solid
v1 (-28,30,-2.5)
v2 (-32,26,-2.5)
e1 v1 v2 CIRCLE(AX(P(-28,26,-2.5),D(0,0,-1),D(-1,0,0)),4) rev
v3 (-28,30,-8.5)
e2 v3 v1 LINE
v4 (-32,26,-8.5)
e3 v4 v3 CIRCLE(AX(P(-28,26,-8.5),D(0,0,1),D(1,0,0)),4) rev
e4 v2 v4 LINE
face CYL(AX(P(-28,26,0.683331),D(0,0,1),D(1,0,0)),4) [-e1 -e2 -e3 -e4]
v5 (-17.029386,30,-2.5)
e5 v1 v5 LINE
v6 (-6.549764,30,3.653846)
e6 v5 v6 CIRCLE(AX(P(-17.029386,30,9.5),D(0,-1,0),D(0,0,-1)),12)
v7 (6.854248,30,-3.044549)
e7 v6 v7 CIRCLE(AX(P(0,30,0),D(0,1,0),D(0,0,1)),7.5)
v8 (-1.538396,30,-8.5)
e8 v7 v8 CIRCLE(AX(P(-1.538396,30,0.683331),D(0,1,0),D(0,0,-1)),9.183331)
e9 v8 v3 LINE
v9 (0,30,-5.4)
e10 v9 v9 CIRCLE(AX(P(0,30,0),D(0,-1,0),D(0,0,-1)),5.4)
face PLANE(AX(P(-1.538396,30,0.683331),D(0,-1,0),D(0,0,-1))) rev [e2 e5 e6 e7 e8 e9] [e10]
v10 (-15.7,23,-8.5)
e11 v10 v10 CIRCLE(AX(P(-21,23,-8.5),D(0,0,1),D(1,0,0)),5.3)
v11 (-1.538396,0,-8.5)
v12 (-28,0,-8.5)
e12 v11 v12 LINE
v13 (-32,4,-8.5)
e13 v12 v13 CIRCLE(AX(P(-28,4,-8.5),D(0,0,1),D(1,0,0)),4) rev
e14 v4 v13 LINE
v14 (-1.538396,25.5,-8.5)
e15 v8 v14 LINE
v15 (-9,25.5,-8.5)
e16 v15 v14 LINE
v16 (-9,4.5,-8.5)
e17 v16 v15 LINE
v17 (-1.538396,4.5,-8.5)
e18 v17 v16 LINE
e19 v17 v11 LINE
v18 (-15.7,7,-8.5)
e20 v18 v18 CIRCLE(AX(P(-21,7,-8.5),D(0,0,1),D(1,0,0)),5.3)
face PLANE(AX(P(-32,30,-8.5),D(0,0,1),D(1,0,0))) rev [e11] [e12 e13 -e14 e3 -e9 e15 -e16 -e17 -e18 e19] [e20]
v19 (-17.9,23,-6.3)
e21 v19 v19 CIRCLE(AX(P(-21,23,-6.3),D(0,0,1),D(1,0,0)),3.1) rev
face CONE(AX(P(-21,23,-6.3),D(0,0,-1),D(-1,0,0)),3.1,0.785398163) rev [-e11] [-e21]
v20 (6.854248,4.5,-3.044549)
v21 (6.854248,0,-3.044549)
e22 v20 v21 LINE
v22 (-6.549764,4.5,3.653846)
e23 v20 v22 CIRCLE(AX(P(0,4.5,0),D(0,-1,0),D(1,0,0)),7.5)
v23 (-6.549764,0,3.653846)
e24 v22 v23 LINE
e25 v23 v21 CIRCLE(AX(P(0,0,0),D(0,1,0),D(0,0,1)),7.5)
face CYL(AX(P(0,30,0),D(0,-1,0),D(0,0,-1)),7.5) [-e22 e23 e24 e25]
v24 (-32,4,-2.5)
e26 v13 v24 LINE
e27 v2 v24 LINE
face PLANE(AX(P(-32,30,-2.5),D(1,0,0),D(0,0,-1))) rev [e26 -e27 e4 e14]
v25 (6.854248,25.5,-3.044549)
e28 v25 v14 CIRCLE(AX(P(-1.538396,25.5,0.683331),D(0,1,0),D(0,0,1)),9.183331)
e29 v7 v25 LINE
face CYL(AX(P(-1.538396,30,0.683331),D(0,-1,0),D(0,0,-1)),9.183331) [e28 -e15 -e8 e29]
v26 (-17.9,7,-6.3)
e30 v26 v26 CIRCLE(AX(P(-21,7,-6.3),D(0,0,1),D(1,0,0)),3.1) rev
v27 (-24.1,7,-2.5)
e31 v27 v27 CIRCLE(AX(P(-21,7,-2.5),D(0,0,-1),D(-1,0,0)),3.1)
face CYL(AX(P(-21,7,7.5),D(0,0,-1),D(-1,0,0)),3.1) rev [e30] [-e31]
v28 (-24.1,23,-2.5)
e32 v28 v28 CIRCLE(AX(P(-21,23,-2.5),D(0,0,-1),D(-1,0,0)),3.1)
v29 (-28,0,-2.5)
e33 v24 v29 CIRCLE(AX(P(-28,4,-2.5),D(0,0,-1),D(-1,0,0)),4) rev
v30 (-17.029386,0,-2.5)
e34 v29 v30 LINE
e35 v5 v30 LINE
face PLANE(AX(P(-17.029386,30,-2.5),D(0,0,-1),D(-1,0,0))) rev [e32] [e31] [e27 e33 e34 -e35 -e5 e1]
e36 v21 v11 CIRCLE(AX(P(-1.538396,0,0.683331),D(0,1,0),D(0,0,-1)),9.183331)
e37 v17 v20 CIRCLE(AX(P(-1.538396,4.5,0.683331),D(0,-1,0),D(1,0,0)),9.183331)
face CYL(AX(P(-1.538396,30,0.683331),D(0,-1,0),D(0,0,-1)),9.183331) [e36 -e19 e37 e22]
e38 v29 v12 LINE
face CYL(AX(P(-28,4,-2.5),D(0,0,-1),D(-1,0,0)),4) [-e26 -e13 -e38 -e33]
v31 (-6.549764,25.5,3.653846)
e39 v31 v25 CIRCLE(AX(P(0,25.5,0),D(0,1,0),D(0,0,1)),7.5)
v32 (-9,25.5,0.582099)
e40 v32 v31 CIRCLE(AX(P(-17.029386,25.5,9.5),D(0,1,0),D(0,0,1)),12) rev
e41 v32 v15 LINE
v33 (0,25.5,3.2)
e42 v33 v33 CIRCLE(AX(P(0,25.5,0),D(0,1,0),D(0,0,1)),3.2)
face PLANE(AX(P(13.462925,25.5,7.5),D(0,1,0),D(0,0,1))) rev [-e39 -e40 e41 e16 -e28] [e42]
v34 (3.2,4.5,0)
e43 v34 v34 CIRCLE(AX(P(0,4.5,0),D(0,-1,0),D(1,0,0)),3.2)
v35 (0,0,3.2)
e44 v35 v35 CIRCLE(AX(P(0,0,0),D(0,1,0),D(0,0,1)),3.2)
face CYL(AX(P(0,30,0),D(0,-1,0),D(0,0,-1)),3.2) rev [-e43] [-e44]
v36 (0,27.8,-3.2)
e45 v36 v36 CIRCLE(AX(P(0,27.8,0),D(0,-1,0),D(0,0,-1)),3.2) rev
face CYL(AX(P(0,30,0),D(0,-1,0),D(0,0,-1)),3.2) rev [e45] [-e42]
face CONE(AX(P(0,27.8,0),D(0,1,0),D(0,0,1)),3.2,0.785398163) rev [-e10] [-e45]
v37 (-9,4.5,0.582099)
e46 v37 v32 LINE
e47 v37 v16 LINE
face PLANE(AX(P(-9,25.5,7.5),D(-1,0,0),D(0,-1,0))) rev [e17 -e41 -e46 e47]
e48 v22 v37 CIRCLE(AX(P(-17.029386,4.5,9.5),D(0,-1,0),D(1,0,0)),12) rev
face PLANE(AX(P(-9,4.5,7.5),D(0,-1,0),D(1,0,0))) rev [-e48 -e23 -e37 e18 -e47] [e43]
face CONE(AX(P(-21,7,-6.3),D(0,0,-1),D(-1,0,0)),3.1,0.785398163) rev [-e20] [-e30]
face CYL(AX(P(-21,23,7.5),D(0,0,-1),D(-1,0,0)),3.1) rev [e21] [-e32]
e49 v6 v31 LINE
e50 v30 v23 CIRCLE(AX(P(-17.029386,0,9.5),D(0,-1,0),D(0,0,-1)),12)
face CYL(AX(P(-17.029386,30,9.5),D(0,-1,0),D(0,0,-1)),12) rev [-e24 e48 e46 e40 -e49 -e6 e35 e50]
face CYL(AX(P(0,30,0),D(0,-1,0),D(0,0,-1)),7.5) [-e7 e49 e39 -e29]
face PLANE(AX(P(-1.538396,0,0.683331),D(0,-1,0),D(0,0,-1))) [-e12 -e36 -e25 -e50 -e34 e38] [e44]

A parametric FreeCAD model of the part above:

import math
import FreeCAD as App
import Part
import Sketcher
from FreeCAD import Vector


def edges_at(feature, points):
    """Names of the edges that pass closest to the given points."""
    edges = feature.Shape.Edges
    near = lambda p: min(range(len(edges)), key=lambda i: edges[i].distToShape(Part.Vertex(*p))[0])
    return sorted({f"Edge{near(p) + 1}" for p in points})

doc = App.newDocument("Part")
body = doc.addObject("PartDesign::Body", "Body")

# Sketch on XZ plane
sketch1 = body.newObject("Sketcher::SketchObject", "Sketch")
sketch1.AttachmentSupport = (doc.getObject("XZ_Plane"), [""])
sketch1.MapMode = "FlatFace"
sketch1.addGeometry(Part.LineSegment(Vector(-1.5, -8.5, 0), Vector(-32, -8.5, 0)), False)
sketch1.addGeometry(Part.LineSegment(Vector(-32, -8.5, 0), Vector(-32, -2.5, 0)), False)
sketch1.addGeometry(Part.LineSegment(Vector(-32, -2.5, 0), Vector(-17, -2.5, 0)), False)
sketch1.addGeometry(Part.ArcOfCircle(Part.Circle(Vector(-17, 9.5, 0), Vector(0, 0, 1), 12), math.radians(-90), math.radians(-29)), False)
sketch1.addGeometry(Part.ArcOfCircle(Part.Circle(Vector(0, 0, 0), Vector(0, 0, 1), 7.5), math.radians(-24), math.radians(151)), False)
sketch1.addGeometry(Part.ArcOfCircle(Part.Circle(Vector(-1.5, 0.7, 0), Vector(0, 0, 1), 9.2), math.radians(-90), math.radians(-24)), False)
sketch1.addGeometry(Part.Circle(Vector(0, 0, 0), Vector(0, 0, 1), 3.2), False)
sketch1.addConstraint(Sketcher.Constraint("Coincident", 0, 2, 1, 1))
sketch1.addConstraint(Sketcher.Constraint("Coincident", 1, 2, 2, 1))
sketch1.addConstraint(Sketcher.Constraint("Tangent", 2, 2, 3, 1))
sketch1.addConstraint(Sketcher.Constraint("Tangent", 3, 2, 4, 2))
sketch1.addConstraint(Sketcher.Constraint("Tangent", 4, 1, 5, 2))
sketch1.addConstraint(Sketcher.Constraint("Tangent", 5, 1, 0, 1))
sketch1.addConstraint(Sketcher.Constraint("Horizontal", 0))
sketch1.addConstraint(Sketcher.Constraint("Vertical", 1))
sketch1.addConstraint(Sketcher.Constraint("Horizontal", 2))
sketch1.addConstraint(Sketcher.Constraint("Coincident", 4, 3, -1, 1))
sketch1.addConstraint(Sketcher.Constraint("Coincident", 6, 3, -1, 1))
sketch1.addConstraint(Sketcher.Constraint("Radius", 3, 12.0))
sketch1.addConstraint(Sketcher.Constraint("Diameter", 6, 6.4))
sketch1.addConstraint(Sketcher.Constraint("Radius", 4, 7.5))
sketch1.addConstraint(Sketcher.Constraint("DistanceY", 1, 1, 1, 2, 6.0))
sketch1.addConstraint(Sketcher.Constraint("DistanceX", 0, 2, -1, 1, 32.0))
sketch1.addConstraint(Sketcher.Constraint("DistanceY", -1, 1, 3, 3, 9.5))
sketch1.addConstraint(Sketcher.Constraint("Radius", 5, 9.183331))
pad1 = body.newObject("PartDesign::Pad", "Pad")
pad1.Profile = sketch1
pad1.Length = 30
pad1.Reversed = True
doc.recompute()

fillet = body.newObject("PartDesign::Fillet", "Fillet")
fillet.Base = (pad1, edges_at(pad1, [(-32, 30, -5.5), (-32, 0, -5.5)]))
fillet.Radius = 4

# Sketch on XY plane
sketch2 = body.newObject("Sketcher::SketchObject", "Sketch001")
sketch2.AttachmentSupport = (doc.getObject("XY_Plane"), [""])
sketch2.MapMode = "FlatFace"
sketch2.AttachmentOffset = App.Placement(Vector(0, 0, -8.5), App.Rotation())
sketch2.addGeometry(Part.Circle(Vector(-21, 23, 0), Vector(0, 0, 1), 3.1), False)
sketch2.addGeometry(Part.Circle(Vector(-21, 7, 0), Vector(0, 0, 1), 3.1), False)
sketch2.addConstraint(Sketcher.Constraint("Equal", 0, 1))
sketch2.addConstraint(Sketcher.Constraint("Vertical", 0, 3, 1, 3))
sketch2.addConstraint(Sketcher.Constraint("Diameter", 0, 6.2))
sketch2.addConstraint(Sketcher.Constraint("DistanceX", 0, 3, -1, 1, 21.0))
sketch2.addConstraint(Sketcher.Constraint("DistanceY", -1, 1, 0, 3, 23.0))
sketch2.addConstraint(Sketcher.Constraint("DistanceY", -1, 1, 1, 3, 7.0))
pocket1 = body.newObject("PartDesign::Pocket", "Pocket")
pocket1.Profile = sketch2
pocket1.Type = "ThroughAll"
pocket1.Reversed = True

# Sketch on XY plane
sketch3 = body.newObject("Sketcher::SketchObject", "Sketch002")
sketch3.AttachmentSupport = (doc.getObject("XY_Plane"), [""])
sketch3.MapMode = "FlatFace"
sketch3.AttachmentOffset = App.Placement(Vector(0, 0, -8.5), App.Rotation())
sketch3.addGeometry(Part.LineSegment(Vector(13, 26, 0), Vector(13, 4, 0)), False)
sketch3.addGeometry(Part.LineSegment(Vector(13, 4, 0), Vector(-9, 4, 0)), False)
sketch3.addGeometry(Part.LineSegment(Vector(-9, 4, 0), Vector(-9, 26, 0)), False)
sketch3.addGeometry(Part.LineSegment(Vector(-9, 26, 0), Vector(13, 26, 0)), False)
sketch3.addConstraint(Sketcher.Constraint("Coincident", 0, 2, 1, 1))
sketch3.addConstraint(Sketcher.Constraint("Coincident", 1, 2, 2, 1))
sketch3.addConstraint(Sketcher.Constraint("Coincident", 2, 2, 3, 1))
sketch3.addConstraint(Sketcher.Constraint("Coincident", 3, 2, 0, 1))
sketch3.addConstraint(Sketcher.Constraint("Vertical", 0))
sketch3.addConstraint(Sketcher.Constraint("Horizontal", 1))
sketch3.addConstraint(Sketcher.Constraint("Vertical", 2))
sketch3.addConstraint(Sketcher.Constraint("Horizontal", 3))
sketch3.addConstraint(Sketcher.Constraint("DistanceY", 0, 2, 0, 1, 21.0))
sketch3.addConstraint(Sketcher.Constraint("DistanceX", 1, 2, -1, 1, 9.0))
sketch3.addConstraint(Sketcher.Constraint("DistanceY", -1, 1, 0, 2, 4.5))
sketch3.addConstraint(Sketcher.Constraint("DistanceX", 1, 2, 1, 1, 22.462925))
pocket2 = body.newObject("PartDesign::Pocket", "Pocket001")
pocket2.Profile = sketch3
pocket2.Type = "ThroughAll"
pocket2.Reversed = True
doc.recompute()

chamfer = body.newObject("PartDesign::Chamfer", "Chamfer")
chamfer.Base = (pocket2, edges_at(pocket2, [(0, 30, -3.2)]))
chamfer.Size = 2.2
doc.recompute()

chamfer2 = body.newObject("PartDesign::Chamfer", "Chamfer001")
chamfer2.Base = (chamfer, edges_at(chamfer, [(-17.9, 23, -8.5)]))
chamfer2.Size = 2.2
doc.recompute()

chamfer3 = body.newObject("PartDesign::Chamfer", "Chamfer002")
chamfer3.Base = (chamfer2, edges_at(chamfer2, [(-17.9, 7, -8.5)]))
chamfer3.Size = 2.2

doc.recompute()
